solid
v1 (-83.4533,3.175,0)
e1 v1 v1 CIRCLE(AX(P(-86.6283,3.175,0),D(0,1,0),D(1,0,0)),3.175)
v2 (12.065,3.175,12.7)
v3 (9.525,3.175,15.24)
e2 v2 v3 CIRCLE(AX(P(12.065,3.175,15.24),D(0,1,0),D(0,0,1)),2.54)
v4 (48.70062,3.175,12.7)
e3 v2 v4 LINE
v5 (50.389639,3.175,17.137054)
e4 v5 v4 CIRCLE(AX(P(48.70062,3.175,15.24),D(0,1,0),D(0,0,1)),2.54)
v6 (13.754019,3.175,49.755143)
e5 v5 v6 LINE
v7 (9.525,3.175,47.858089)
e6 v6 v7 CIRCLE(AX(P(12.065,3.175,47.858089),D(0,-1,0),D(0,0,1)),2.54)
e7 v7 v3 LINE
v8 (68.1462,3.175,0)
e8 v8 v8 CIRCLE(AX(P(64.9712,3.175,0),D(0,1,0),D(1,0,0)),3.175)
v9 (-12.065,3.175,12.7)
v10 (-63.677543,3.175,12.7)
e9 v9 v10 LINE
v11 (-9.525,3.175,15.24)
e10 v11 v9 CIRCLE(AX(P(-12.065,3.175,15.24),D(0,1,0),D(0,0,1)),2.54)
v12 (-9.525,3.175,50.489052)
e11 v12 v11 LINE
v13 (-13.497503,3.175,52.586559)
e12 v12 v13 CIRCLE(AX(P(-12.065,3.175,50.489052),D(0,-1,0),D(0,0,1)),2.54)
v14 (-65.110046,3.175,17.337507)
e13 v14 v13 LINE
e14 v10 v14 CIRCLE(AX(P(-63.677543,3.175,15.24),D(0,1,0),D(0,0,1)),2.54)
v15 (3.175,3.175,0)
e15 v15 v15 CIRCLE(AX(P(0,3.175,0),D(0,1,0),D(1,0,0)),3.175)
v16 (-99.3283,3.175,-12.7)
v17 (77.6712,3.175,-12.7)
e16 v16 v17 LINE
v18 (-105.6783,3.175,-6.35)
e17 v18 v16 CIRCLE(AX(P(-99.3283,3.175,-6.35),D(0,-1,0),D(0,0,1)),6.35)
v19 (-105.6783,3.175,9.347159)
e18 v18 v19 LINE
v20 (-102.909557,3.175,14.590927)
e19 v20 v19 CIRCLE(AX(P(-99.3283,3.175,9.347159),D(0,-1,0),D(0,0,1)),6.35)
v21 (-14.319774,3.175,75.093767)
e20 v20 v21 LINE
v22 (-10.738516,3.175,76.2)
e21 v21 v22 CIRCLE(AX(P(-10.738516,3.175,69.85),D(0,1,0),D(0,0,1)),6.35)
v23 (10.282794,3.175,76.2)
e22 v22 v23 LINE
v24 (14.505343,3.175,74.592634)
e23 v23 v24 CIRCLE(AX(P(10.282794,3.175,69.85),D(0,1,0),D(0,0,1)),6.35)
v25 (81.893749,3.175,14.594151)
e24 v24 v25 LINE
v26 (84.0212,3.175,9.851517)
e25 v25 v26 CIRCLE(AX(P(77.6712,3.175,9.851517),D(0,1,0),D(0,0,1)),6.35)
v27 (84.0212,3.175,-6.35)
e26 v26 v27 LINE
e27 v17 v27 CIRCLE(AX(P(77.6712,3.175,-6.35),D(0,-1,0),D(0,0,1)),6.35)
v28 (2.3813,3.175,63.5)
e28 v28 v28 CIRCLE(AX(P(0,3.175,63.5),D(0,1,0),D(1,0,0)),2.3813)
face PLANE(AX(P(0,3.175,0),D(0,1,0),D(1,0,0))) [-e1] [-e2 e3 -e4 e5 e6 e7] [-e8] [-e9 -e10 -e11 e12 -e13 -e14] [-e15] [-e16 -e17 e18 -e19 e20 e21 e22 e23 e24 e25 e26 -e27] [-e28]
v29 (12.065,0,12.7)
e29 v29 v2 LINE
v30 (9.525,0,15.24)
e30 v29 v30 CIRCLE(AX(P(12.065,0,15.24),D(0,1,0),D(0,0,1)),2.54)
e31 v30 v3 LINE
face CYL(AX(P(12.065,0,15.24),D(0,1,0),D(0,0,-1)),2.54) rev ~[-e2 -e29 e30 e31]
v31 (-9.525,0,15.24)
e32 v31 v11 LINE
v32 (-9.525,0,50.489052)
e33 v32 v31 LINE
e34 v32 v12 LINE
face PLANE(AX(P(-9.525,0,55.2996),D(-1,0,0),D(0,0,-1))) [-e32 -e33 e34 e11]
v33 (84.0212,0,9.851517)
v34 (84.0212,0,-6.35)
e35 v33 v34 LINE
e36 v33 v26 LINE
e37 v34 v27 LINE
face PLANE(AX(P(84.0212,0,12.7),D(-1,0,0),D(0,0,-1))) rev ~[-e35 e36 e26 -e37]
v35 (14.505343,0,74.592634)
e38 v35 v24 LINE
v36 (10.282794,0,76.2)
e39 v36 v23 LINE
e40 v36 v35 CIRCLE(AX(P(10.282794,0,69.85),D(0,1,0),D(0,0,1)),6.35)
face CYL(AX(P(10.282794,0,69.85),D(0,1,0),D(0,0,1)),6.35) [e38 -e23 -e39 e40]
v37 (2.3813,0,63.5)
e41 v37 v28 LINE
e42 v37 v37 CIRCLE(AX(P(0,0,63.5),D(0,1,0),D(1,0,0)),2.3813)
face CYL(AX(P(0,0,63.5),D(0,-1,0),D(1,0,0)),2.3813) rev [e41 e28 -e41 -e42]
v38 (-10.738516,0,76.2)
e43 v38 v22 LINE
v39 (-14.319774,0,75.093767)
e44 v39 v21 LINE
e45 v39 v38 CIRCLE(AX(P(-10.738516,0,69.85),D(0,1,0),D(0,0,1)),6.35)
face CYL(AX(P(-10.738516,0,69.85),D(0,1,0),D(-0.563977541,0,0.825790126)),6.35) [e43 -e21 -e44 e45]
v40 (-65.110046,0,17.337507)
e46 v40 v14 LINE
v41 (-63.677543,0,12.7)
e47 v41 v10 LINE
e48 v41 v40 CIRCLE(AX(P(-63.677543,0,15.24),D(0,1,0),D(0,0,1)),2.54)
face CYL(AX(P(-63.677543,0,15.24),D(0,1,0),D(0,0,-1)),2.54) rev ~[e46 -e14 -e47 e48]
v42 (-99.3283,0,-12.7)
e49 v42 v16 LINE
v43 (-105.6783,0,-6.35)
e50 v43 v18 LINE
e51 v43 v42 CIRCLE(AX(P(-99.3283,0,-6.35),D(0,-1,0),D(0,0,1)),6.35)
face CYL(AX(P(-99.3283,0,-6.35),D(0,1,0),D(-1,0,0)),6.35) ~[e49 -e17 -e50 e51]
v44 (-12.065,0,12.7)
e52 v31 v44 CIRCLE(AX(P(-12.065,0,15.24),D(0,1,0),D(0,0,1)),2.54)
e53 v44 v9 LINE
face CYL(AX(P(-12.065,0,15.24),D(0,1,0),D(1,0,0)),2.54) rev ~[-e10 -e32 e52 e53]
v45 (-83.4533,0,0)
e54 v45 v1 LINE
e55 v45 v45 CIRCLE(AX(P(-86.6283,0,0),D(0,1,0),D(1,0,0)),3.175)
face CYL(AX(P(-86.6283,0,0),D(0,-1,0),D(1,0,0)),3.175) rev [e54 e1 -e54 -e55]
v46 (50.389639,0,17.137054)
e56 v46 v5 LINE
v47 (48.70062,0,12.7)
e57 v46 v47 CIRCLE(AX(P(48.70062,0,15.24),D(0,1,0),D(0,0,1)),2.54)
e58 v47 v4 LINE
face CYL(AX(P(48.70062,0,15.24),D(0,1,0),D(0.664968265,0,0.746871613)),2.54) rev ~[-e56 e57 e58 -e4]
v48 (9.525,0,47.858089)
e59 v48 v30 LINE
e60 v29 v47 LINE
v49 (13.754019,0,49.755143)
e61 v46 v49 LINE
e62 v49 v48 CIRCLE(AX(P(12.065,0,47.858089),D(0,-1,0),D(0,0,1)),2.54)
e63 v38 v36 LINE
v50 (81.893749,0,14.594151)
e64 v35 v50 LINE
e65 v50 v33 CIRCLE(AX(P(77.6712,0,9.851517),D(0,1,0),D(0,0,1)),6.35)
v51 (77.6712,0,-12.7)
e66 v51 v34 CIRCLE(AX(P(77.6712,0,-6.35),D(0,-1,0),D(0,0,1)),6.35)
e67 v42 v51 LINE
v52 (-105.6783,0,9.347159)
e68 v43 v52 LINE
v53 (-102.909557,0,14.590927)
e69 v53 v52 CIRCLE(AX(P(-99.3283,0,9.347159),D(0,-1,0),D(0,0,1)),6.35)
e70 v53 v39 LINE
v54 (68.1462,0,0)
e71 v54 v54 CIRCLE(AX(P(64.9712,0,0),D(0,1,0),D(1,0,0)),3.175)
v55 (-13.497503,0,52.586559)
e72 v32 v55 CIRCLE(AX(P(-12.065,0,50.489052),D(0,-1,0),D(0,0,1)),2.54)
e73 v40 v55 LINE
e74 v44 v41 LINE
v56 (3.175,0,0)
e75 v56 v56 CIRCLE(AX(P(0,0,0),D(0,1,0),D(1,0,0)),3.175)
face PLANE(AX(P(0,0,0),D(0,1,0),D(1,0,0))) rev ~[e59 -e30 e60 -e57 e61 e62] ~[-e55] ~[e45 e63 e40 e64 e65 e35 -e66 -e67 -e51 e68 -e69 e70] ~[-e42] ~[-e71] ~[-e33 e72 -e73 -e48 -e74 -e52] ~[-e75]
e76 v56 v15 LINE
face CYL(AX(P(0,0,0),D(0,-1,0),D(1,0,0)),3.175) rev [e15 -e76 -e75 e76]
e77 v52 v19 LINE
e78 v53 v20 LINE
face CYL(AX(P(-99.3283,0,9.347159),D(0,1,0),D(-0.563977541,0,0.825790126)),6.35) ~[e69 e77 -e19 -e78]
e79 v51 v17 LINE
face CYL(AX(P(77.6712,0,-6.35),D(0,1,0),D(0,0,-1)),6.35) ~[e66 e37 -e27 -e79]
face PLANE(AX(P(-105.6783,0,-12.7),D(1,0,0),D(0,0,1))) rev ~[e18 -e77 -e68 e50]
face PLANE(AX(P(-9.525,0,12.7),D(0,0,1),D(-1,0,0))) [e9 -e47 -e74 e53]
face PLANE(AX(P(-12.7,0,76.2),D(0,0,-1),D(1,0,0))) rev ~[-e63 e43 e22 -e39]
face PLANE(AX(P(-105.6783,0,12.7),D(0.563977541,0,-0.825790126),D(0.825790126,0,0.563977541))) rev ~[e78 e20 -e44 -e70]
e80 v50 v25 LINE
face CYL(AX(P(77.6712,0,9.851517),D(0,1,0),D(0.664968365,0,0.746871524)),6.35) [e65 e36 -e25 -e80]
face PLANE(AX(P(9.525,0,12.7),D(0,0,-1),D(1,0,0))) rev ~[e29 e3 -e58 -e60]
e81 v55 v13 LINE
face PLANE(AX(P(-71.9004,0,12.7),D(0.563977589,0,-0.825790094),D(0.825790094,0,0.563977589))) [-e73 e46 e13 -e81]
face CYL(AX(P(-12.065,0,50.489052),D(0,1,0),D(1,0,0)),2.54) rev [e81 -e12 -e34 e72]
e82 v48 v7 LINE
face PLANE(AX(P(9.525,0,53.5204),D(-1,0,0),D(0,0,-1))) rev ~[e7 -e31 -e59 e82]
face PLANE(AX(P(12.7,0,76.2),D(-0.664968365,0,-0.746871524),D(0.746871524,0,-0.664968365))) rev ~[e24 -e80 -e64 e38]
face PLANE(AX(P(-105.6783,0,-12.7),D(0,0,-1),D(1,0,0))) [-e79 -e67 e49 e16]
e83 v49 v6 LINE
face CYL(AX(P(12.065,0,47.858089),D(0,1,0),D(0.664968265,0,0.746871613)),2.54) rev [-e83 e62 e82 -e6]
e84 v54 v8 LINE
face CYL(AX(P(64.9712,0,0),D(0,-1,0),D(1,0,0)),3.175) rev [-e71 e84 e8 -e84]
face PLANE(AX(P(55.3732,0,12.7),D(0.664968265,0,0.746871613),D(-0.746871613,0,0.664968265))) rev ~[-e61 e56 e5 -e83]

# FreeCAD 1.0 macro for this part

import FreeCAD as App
import Part
import Sketcher
Q = App.Units.Quantity


def edges_at(feature, points):
    """Names of the edges that pass closest to the given points."""
    edges = feature.Shape.Edges
    near = lambda p: min(range(len(edges)), key=lambda i: edges[i].distToShape(Part.Vertex(*p))[0])
    return sorted({f"Edge{near(p) + 1}" for p in points})


def add_polygon(sketch, points):
    """Adds a closed chain of lines whose ends are joined by coincident constraints."""
    first, n = sketch.GeometryCount, len(points)
    for a, b in zip(points, points[1:] + points[:1]):
        sketch.addGeometry(Part.LineSegment(App.Vector(*a, 0), App.Vector(*b, 0)), False)
    for i in range(n):
        sketch.addConstraint(Sketcher.Constraint("Coincident", first + i, 2, first + (i + 1) % n, 1))

doc = App.newDocument("Part")
body = doc.addObject("PartDesign::Body", "Body")

# Sketch on XZ plane
sketch1 = body.newObject("Sketcher::SketchObject", "Sketch")
sketch1.AttachmentSupport = (doc.getObject("XZ_Plane"), [""])
sketch1.MapMode = "FlatFace"
add_polygon(sketch1, [(-105.7, 12.7), (-12.7, 76.2), (12.7, 76.2), (84, 12.7), (84, -12.7), (-105.7, -12.7)])  # lines 0-5
sketch1.addGeometry(Part.Circle(App.Vector(0, 63.5, 0), App.Vector(0, 0, 1), 2.4), False)  # 6
sketch1.addGeometry(Part.Circle(App.Vector(-86.6, 0, 0), App.Vector(0, 0, 1), 3.2), False)  # 7
sketch1.addGeometry(Part.Circle(App.Vector(0, 0, 0), App.Vector(0, 0, 1), 3.2), False)  # 8
sketch1.addGeometry(Part.Circle(App.Vector(65, 0, 0), App.Vector(0, 0, 1), 3.2), False)  # 9
sketch1.addConstraint([
    Sketcher.Constraint("Horizontal", 1),
    Sketcher.Constraint("Vertical", 3),
    Sketcher.Constraint("Horizontal", 4),
    Sketcher.Constraint("Vertical", 5),
    Sketcher.Constraint("Coincident", 8, 3, -1, 1),
    Sketcher.Constraint("Equal", 7, 8),
    Sketcher.Constraint("Equal", 8, 9),
    Sketcher.Constraint("PointOnObject", 6, 3, -2),
    Sketcher.Constraint("PointOnObject", 7, 3, -1),
    Sketcher.Constraint("PointOnObject", 9, 3, -1),
    Sketcher.Constraint("Horizontal", 2, 2, 5, 2),
    Sketcher.Constraint("Equal", 1, 3),
    Sketcher.Constraint("Diameter", 7, Q("0.25 in")),
    Sketcher.Constraint("DistanceX", 1, 1, 1, 2, Q("1 in")),
    Sketcher.Constraint("Diameter", 6, Q("0.1875 in")),
    Sketcher.Constraint("DistanceY", -1, 1, 6, 3, Q("2.5 in")),
    Sketcher.Constraint("DistanceX", 0, 2, -1, 1, Q("0.5 in")),
    Sketcher.Constraint("DistanceY", -1, 1, 2, 2, Q("0.5 in")),
    Sketcher.Constraint("DistanceY", 6, 3, 0, 2, Q("0.5 in")),
    Sketcher.Constraint("DistanceX", 9, 3, 2, 2, Q("0.75 in")),
    Sketcher.Constraint("DistanceX", 4, 2, 7, 3, Q("0.75 in")),
    Sketcher.Constraint("DistanceX", 7, 3, -1, 1, Q("86.6283 mm")),
    Sketcher.Constraint("DistanceX", -1, 1, 9, 3, Q("64.9712 mm")),
])
pad1 = body.newObject("PartDesign::Pad", "Pad")
pad1.Profile = sketch1
pad1.Length = Q("0.125 in")
pad1.Reversed = True

# Sketch on XZ plane
sketch2 = body.newObject("Sketcher::SketchObject", "Sketch001")
sketch2.AttachmentSupport = (doc.getObject("XZ_Plane"), [""])
sketch2.MapMode = "FlatFace"
add_polygon(sketch2, [(10, 13), (10, 54), (55, 13)])  # lines 0-2
add_polygon(sketch2, [(-10, 55), (-10, 13), (-72, 13)])  # lines 3-5
sketch2.addConstraint([
    Sketcher.Constraint("Vertical", 0),
    Sketcher.Constraint("Horizontal", 2),
    Sketcher.Constraint("Vertical", 3),
    Sketcher.Constraint("Horizontal", 4),
    Sketcher.Constraint("Symmetric", 2, 2, 3, 2, -2),
    Sketcher.Constraint("DistanceX", 3, 2, 2, 2, Q("0.75 in")),
    Sketcher.Constraint("DistanceY", -1, 1, 1, 2, Q("0.5 in")),
    Sketcher.Constraint("Angle", 1, Q("-41.68 deg")),
    Sketcher.Constraint("DistanceY", 0, 1, 0, 2, Q("1.6071 in")),
    Sketcher.Constraint("DistanceX", 4, 2, 4, 1, Q("62.3754 mm")),
    Sketcher.Constraint("DistanceY", 3, 2, 3, 1, Q("42.5996 mm")),
])
pocket1 = body.newObject("PartDesign::Pocket", "Pocket")
pocket1.Profile = sketch2
pocket1.Length = Q("0.125 in")
doc.recompute()

fillet = body.newObject("PartDesign::Fillet", "Fillet")
fillet.Base = (pocket1, edges_at(pocket1, [
    (-71.9, 1.587, 12.7),
    (-9.525, 1.587, 12.7),
    (-9.525, 1.587, 55.3),
    (9.525, 1.587, 53.52),
    (9.525, 1.587, 12.7),
    (55.373, 1.587, 12.7),
]))
fillet.Radius = Q("0.1 in")
doc.recompute()

fillet2 = body.newObject("PartDesign::Fillet", "Fillet001")
fillet2.Base = (fillet, edges_at(fillet, [(12.7, 1.587, 76.2), (84.021, 1.587, 12.7)]))
fillet2.Radius = Q("0.25 in")
doc.recompute()

fillet3 = body.newObject("PartDesign::Fillet", "Fillet002")
fillet3.Base = (fillet2, edges_at(fillet2, [(-105.678, 1.587, -12.7), (84.021, 1.587, -12.7)]))
fillet3.Radius = Q("0.25 in")
doc.recompute()

fillet4 = body.newObject("PartDesign::Fillet", "Fillet003")
fillet4.Base = (fillet3, edges_at(fillet3, [(-12.7, 1.587, 76.2), (-105.678, 1.587, 12.7)]))
fillet4.Radius = Q("0.25 in")

doc.recompute()
